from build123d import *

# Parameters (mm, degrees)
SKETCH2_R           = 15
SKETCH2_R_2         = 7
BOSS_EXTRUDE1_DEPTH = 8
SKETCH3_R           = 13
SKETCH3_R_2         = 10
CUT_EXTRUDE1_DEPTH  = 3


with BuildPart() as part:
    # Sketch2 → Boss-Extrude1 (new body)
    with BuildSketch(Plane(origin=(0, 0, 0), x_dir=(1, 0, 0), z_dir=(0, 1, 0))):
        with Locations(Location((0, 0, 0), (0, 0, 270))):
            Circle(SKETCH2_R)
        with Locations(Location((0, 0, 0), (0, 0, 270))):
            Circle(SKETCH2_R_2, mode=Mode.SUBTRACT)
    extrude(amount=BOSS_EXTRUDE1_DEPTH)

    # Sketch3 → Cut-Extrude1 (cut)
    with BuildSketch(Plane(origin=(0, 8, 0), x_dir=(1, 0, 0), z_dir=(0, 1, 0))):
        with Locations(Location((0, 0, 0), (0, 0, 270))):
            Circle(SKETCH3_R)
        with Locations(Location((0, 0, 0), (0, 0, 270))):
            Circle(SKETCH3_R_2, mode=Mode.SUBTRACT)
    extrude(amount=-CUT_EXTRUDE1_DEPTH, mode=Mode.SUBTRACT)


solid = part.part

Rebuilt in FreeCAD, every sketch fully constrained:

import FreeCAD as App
import Part
import Sketcher
from FreeCAD import Vector
Q = App.Units.Quantity

doc = App.newDocument("Part")
body = doc.addObject("PartDesign::Body", "Body")

# Sketch on XZ plane
sketch1 = body.newObject("Sketcher::SketchObject", "Sketch")
sketch1.AttachmentSupport = (doc.getObject("XZ_Plane"), [""])
sketch1.MapMode = "FlatFace"
sketch1.addGeometry([
    Part.Circle(Vector(0, 0, 0), Vector(0, 0, 1), 15),
    Part.Circle(Vector(0, 0, 0), Vector(0, 0, 1), 7),
], False)
sketch1.addConstraint([
    Sketcher.Constraint("Coincident", 0, 3, -1, 1),
    Sketcher.Constraint("Coincident", 1, 3, -1, 1),
    Sketcher.Constraint("Diameter", 0, Q("30 mm")),
    Sketcher.Constraint("Diameter", 1, Q("14 mm")),
])
pad1 = body.newObject("PartDesign::Pad", "Pad")
pad1.Profile = sketch1
pad1.Length = 8
pad1.Reversed = True

# Sketch on XZ plane
sketch2 = body.newObject("Sketcher::SketchObject", "Sketch001")
sketch2.AttachmentSupport = (doc.getObject("XZ_Plane"), [""])
sketch2.MapMode = "FlatFace"
sketch2.AttachmentOffset = App.Placement(Vector(0, 0, -8), App.Rotation())
sketch2.addGeometry([
    Part.Circle(Vector(0, 0, 0), Vector(0, 0, 1), 13),
    Part.Circle(Vector(0, 0, 0), Vector(0, 0, 1), 10),
], False)
sketch2.addConstraint([
    Sketcher.Constraint("Coincident", 0, 3, -1, 1),
    Sketcher.Constraint("Coincident", 1, 3, -1, 1),
    Sketcher.Constraint("Diameter", 0, Q("26 mm")),
    Sketcher.Constraint("Diameter", 1, Q("20 mm")),
])
pocket1 = body.newObject("PartDesign::Pocket", "Pocket")
pocket1.Profile = sketch2
pocket1.Length = 3
pocket1.Reversed = True

doc.recompute()
